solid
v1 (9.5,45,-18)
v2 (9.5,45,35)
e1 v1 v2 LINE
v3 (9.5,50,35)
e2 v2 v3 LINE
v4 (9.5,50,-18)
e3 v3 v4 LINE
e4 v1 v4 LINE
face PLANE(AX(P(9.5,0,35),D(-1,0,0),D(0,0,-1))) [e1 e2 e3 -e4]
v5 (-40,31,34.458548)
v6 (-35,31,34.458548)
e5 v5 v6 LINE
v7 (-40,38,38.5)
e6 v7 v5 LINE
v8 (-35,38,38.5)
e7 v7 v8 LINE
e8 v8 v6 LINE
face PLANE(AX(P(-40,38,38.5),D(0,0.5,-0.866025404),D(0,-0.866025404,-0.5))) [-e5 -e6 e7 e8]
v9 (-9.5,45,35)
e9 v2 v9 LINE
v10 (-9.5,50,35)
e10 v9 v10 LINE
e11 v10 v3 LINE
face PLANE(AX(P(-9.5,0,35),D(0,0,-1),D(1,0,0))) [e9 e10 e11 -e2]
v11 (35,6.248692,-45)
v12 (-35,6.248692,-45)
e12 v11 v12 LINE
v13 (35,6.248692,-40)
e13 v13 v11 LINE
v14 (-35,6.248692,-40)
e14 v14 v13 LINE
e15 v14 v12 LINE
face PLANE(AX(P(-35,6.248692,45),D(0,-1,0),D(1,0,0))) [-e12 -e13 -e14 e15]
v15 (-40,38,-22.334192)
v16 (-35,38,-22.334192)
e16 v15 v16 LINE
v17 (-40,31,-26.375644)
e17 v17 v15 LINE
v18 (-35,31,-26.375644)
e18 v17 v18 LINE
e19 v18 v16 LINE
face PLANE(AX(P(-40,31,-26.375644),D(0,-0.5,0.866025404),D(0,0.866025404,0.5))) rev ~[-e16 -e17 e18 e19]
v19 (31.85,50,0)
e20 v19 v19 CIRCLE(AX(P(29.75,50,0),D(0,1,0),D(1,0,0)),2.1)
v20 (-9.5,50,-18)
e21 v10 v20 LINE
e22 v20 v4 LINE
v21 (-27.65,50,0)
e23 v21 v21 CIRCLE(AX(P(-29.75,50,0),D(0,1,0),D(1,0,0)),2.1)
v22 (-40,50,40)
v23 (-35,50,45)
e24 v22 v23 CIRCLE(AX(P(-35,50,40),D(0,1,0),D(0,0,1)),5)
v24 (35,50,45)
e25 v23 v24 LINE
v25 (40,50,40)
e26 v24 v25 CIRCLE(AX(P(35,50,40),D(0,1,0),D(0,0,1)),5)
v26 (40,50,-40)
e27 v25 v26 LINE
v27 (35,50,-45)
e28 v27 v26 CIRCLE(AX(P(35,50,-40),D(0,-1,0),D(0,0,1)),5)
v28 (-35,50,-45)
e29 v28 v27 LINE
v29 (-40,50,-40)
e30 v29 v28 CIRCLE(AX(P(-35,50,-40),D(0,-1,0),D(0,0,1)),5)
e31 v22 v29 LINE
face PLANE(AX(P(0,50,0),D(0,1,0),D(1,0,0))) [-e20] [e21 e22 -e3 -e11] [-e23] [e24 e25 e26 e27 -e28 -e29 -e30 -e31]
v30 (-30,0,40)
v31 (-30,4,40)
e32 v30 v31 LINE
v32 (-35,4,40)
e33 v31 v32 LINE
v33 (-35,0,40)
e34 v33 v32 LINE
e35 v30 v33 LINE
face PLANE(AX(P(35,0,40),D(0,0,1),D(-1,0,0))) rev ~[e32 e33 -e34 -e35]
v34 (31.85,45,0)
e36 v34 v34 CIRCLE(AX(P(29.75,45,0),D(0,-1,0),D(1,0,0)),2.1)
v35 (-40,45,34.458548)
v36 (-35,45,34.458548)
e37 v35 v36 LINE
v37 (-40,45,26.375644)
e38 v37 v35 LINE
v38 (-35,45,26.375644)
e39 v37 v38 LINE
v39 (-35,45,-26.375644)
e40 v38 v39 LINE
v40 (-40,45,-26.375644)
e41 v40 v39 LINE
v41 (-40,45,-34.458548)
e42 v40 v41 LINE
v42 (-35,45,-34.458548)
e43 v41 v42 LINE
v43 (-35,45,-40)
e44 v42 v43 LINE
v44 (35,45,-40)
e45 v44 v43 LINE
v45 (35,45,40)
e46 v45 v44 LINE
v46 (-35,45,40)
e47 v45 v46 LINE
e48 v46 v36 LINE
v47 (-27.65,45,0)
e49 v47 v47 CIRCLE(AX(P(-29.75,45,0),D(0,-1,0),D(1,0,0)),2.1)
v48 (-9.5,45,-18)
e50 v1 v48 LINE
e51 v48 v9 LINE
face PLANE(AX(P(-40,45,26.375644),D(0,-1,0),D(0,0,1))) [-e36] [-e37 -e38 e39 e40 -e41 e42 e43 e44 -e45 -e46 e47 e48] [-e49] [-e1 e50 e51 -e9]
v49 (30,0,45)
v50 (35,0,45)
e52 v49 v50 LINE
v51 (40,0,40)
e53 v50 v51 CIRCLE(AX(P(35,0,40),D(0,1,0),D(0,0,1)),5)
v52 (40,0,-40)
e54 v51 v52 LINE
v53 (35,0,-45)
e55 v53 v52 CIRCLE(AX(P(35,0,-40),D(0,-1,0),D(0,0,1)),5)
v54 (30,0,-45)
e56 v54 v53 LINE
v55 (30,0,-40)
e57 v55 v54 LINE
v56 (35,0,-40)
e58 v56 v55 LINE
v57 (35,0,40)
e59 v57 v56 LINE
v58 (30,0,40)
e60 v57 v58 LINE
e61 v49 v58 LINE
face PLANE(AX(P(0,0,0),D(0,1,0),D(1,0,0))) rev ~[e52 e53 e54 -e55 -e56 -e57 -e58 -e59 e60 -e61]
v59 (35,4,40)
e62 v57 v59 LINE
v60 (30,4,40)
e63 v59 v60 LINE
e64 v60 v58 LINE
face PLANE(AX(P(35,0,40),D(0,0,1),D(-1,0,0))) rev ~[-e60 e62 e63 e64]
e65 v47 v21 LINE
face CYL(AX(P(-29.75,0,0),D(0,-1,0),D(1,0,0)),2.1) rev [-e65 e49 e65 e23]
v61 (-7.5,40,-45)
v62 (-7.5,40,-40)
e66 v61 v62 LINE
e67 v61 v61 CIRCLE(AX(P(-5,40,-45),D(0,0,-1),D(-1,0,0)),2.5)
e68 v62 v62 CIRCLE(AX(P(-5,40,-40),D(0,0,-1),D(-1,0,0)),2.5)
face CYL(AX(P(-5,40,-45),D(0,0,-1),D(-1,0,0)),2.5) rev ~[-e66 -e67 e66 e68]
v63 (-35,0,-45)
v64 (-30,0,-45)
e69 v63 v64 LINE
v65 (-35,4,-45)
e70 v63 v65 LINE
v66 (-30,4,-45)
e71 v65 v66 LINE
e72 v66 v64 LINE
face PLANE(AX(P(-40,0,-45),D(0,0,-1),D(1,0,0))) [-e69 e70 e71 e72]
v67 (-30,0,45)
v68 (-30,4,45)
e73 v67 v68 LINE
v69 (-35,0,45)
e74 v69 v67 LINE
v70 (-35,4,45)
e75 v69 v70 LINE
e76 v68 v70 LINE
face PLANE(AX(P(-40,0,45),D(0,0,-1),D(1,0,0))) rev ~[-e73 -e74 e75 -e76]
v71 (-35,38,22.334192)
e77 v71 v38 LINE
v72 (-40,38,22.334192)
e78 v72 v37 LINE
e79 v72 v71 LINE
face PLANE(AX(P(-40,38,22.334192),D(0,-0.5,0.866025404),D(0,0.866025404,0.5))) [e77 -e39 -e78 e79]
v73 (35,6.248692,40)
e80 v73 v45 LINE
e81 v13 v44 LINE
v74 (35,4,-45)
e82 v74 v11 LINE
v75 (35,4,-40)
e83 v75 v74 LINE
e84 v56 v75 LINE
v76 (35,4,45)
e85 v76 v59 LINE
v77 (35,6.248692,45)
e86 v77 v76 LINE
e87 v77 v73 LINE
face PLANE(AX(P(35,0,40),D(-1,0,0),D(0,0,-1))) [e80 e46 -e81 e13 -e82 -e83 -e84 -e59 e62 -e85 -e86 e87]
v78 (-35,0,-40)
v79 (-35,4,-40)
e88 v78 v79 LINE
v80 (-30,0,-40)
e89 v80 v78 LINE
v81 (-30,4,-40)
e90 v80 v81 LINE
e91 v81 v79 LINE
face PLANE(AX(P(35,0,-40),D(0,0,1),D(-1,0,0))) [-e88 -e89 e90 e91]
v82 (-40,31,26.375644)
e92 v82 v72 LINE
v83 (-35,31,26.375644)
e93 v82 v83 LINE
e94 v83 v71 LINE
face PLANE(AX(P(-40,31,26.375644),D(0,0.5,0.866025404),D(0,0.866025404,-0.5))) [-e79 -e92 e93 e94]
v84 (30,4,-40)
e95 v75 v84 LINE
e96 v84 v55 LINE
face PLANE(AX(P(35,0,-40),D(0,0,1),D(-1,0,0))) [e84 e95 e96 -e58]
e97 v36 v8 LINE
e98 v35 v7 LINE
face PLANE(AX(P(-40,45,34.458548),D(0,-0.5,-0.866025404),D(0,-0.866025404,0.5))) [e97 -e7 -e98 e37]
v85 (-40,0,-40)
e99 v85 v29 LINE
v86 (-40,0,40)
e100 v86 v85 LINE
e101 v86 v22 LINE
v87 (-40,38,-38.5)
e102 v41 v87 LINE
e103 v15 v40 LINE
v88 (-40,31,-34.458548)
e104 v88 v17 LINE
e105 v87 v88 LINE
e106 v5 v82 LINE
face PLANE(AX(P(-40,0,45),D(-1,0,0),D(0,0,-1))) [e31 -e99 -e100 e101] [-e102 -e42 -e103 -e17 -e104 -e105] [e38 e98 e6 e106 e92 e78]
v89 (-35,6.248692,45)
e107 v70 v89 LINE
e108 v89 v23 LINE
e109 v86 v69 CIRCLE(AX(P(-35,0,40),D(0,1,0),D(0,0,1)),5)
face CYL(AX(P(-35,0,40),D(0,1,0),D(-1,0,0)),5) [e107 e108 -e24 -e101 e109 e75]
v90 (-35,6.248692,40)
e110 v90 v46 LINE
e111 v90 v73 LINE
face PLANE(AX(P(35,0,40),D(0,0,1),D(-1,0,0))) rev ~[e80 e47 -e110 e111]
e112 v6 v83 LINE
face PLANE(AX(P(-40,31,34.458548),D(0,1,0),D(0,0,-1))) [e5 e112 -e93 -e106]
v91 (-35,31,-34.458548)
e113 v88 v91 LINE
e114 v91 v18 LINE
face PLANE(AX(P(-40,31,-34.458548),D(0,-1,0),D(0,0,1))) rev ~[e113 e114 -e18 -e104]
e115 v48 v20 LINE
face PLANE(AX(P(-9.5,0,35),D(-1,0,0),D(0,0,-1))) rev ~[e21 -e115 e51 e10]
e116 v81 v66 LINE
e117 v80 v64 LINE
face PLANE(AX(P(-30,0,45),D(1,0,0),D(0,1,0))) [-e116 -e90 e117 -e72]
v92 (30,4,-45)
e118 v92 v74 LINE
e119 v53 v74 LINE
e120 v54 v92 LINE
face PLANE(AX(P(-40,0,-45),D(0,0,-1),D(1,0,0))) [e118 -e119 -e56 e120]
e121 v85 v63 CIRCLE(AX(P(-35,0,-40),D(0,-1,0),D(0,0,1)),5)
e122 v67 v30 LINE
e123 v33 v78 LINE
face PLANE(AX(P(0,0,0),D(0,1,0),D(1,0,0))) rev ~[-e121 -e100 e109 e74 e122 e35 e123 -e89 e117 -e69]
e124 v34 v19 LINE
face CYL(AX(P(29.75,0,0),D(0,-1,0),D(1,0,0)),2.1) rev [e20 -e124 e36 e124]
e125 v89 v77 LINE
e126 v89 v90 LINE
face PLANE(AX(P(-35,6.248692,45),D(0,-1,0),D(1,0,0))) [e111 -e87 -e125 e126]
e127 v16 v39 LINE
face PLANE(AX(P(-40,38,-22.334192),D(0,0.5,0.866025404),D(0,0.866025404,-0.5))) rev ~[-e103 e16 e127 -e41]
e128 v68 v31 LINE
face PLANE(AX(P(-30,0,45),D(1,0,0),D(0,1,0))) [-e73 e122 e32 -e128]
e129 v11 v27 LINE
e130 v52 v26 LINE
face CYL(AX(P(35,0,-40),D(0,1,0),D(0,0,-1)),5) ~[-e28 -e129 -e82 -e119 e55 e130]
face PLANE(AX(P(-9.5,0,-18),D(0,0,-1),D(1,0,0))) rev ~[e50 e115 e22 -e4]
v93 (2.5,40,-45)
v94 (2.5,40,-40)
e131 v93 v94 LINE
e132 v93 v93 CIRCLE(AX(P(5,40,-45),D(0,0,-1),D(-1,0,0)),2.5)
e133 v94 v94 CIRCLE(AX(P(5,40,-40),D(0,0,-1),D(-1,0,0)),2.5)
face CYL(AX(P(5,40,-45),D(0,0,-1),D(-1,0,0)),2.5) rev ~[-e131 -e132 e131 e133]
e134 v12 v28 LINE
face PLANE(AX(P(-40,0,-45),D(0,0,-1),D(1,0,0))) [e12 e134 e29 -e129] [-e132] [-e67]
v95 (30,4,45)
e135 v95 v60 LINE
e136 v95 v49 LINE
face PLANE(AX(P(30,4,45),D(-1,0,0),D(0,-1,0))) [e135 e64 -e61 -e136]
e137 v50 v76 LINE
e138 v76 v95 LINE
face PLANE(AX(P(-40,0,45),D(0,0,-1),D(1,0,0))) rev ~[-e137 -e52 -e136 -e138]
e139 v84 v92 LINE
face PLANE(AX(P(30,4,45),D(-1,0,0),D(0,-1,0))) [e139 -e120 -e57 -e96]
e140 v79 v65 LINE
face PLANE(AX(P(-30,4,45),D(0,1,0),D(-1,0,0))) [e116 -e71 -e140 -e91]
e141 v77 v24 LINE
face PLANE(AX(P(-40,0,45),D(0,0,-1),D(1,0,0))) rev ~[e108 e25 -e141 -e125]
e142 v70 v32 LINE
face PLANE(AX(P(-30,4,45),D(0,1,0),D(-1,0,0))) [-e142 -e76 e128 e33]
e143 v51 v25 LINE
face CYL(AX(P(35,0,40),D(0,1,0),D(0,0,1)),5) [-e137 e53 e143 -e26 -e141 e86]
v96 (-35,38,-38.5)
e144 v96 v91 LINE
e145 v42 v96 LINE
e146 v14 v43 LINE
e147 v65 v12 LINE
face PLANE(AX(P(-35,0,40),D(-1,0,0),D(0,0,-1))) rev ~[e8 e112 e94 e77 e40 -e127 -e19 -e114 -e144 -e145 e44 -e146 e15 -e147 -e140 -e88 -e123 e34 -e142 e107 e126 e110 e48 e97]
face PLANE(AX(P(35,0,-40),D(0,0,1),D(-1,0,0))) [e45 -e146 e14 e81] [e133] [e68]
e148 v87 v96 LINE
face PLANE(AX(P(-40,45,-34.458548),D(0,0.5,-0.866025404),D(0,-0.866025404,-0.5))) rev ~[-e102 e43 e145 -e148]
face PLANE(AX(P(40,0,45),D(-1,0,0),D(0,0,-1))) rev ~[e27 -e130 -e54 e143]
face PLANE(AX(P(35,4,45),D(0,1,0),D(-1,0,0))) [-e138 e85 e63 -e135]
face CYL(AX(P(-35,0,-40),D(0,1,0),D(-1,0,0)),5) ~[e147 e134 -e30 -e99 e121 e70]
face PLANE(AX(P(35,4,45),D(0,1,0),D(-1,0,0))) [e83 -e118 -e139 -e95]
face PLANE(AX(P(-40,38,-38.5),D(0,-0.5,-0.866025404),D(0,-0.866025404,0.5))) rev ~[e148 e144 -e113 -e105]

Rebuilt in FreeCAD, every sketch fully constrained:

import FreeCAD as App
import Part
import Sketcher
Q = App.Units.Quantity


def edges_at(feature, points):
    """Names of the edges that pass closest to the given points."""
    edges = feature.Shape.Edges
    near = lambda p: min(range(len(edges)), key=lambda i: edges[i].distToShape(Part.Vertex(*p))[0])
    return sorted({f"Edge{near(p) + 1}" for p in points})


def add_polygon(sketch, points):
    """Adds a closed chain of lines whose ends are joined by coincident constraints."""
    first, n = sketch.GeometryCount, len(points)
    for a, b in zip(points, points[1:] + points[:1]):
        sketch.addGeometry(Part.LineSegment(App.Vector(*a, 0), App.Vector(*b, 0)), False)
    for i in range(n):
        sketch.addConstraint(Sketcher.Constraint("Coincident", first + i, 2, first + (i + 1) % n, 1))

doc = App.newDocument("Part")
body = doc.addObject("PartDesign::Body", "Body")

sketch1 = body.newObject("Sketcher::SketchObject", "Sketch")
sketch1.AttachmentSupport = (doc.getObject("XZ_Plane"), [""])
sketch1.MapMode = "FlatFace"
add_polygon(sketch1, [(-40, -45), (-40, 45), (40, 45), (40, -45)])
sketch1.addGeometry(Part.Circle(App.Vector(-29.8, 0, 0), App.Vector(0, 0, 1), 2.1), False)
add_polygon(sketch1, [(9.5, 35), (-9.5, 35), (-9.5, -18), (9.5, -18)])
sketch1.addGeometry(Part.Circle(App.Vector(29.8, 0, 0), App.Vector(0, 0, 1), 2.1), False)
sketch1.addConstraint(Sketcher.Constraint("Vertical", 0))
sketch1.addConstraint(Sketcher.Constraint("Horizontal", 1))
sketch1.addConstraint(Sketcher.Constraint("Vertical", 2))
sketch1.addConstraint(Sketcher.Constraint("Horizontal", 3))
sketch1.addConstraint(Sketcher.Constraint("Horizontal", 5))
sketch1.addConstraint(Sketcher.Constraint("Vertical", 6))
sketch1.addConstraint(Sketcher.Constraint("Horizontal", 7))
sketch1.addConstraint(Sketcher.Constraint("Vertical", 8))
sketch1.addConstraint(Sketcher.Constraint("Equal", 4, 9))
sketch1.addConstraint(Sketcher.Constraint("Symmetric", 4, 3, 9, 3, -1, 1))
sketch1.addConstraint(Sketcher.Constraint("Symmetric", 0, 2, 2, 2, -1, 1))
sketch1.addConstraint(Sketcher.Constraint("PointOnObject", 4, 3, -1))
sketch1.addConstraint(Sketcher.Constraint("Diameter", 4, 4.2))
sketch1.addConstraint(Sketcher.Constraint("DistanceX", 1, 1, 1, 2, 80.0))
sketch1.addConstraint(Sketcher.Constraint("DistanceX", 5, 2, 5, 1, 19.0))
sketch1.addConstraint(Sketcher.Constraint("DistanceY", 0, 1, 0, 2, 90.0))
sketch1.addConstraint(Sketcher.Constraint("DistanceY", 6, 2, 6, 1, 53.0))
sketch1.addConstraint(Sketcher.Constraint("DistanceY", -1, 1, 5, 2, 35.0))
sketch1.addConstraint(Sketcher.Constraint("DistanceX", 5, 2, -1, 1, 9.5))
sketch1.addConstraint(Sketcher.Constraint("DistanceX", 4, 3, 9, 3, 59.5))
pad1 = body.newObject("PartDesign::Pad", "Pad")
pad1.Profile = sketch1
pad1.Length = 50
pad1.Reversed = True

sketch2 = body.newObject("Sketcher::SketchObject", "Sketch001")
sketch2.AttachmentSupport = (doc.getObject("XZ_Plane"), [""])
sketch2.MapMode = "FlatFace"
add_polygon(sketch2, [(35, -40), (35, 40), (-35, 40), (-35, -40)])
sketch2.addConstraint(Sketcher.Constraint("Vertical", 0))
sketch2.addConstraint(Sketcher.Constraint("Horizontal", 1))
sketch2.addConstraint(Sketcher.Constraint("Vertical", 2))
sketch2.addConstraint(Sketcher.Constraint("Horizontal", 3))
sketch2.addConstraint(Sketcher.Constraint("Symmetric", 0, 2, 2, 2, -1, 1))
sketch2.addConstraint(Sketcher.Constraint("DistanceX", 1, 2, 1, 1, 70.0))
sketch2.addConstraint(Sketcher.Constraint("DistanceY", 0, 1, 0, 2, 80.0))
pocket1 = body.newObject("PartDesign::Pocket", "Pocket")
pocket1.Profile = sketch2
pocket1.Length = 45

sketch3 = body.newObject("Sketcher::SketchObject", "Sketch002")
sketch3.AttachmentSupport = (doc.getObject("XY_Plane"), [""])
sketch3.MapMode = "FlatFace"
sketch3.AttachmentOffset = App.Placement(App.Vector(0, 0, -45), App.Rotation())
sketch3.addGeometry(Part.Circle(App.Vector(5, 40, 0), App.Vector(0, 0, 1), 2.5), False)
sketch3.addGeometry(Part.Circle(App.Vector(-5, 40, 0), App.Vector(0, 0, 1), 2.5), False)
sketch3.addConstraint(Sketcher.Constraint("Equal", 0, 1))
sketch3.addConstraint(Sketcher.Constraint("Symmetric", 0, 3, 1, 3, -2))
sketch3.addConstraint(Sketcher.Constraint("Diameter", 0, 5.0))
sketch3.addConstraint(Sketcher.Constraint("DistanceX", -1, 1, 0, 3, 5.0))
sketch3.addConstraint(Sketcher.Constraint("DistanceY", -1, 1, 0, 3, 40.0))
pocket2 = body.newObject("PartDesign::Pocket", "Pocket001")
pocket2.Profile = sketch3
pocket2.Length = 10.25
pocket2.Reversed = True

sketch4 = body.newObject("Sketcher::SketchObject", "Sketch003")
sketch4.AttachmentSupport = (doc.getObject("YZ_Plane"), [""])
sketch4.MapMode = "FlatFace"
sketch4.AttachmentOffset = App.Placement(App.Vector(0, 0, -40), App.Rotation())
add_polygon(sketch4, [(31, -26), (38, -22), (45, -26), (45, -34), (38, -38), (31, -34)])
add_polygon(sketch4, [(31, 26), (31, 34), (38, 38), (45, 34), (45, 26), (38, 22)])
sketch4.addConstraint(Sketcher.Constraint("Vertical", 2))
sketch4.addConstraint(Sketcher.Constraint("Vertical", 5))
sketch4.addConstraint(Sketcher.Constraint("Vertical", 6))
sketch4.addConstraint(Sketcher.Constraint("Vertical", 9))
sketch4.addConstraint(Sketcher.Constraint("Symmetric", 4, 2, 6, 2, -1))
sketch4.addConstraint(Sketcher.Constraint("Symmetric", 3, 2, 7, 2, -1))
sketch4.addConstraint(Sketcher.Constraint("Symmetric", 2, 2, 8, 2, -1))
sketch4.addConstraint(Sketcher.Constraint("Symmetric", 0, 2, 10, 2, -1))
sketch4.addConstraint(Sketcher.Constraint("Parallel", 0, 3))
sketch4.addConstraint(Sketcher.Constraint("Parallel", 1, 4))
sketch4.addConstraint(Sketcher.Constraint("Parallel", 3, 7))
sketch4.addConstraint(Sketcher.Constraint("Parallel", 7, 10))
sketch4.addConstraint(Sketcher.Constraint("Parallel", 8, 11))
sketch4.addConstraint(Sketcher.Constraint("Horizontal", 2, 2, 4, 2))
sketch4.addConstraint(Sketcher.Constraint("Horizontal", 1, 2, 5, 2))
sketch4.addConstraint(Sketcher.Constraint("Angle", 0, Q("30 deg")))
sketch4.addConstraint(Sketcher.Constraint("DistanceX", -1, 1, 0, 2, 38.0))
sketch4.addConstraint(Sketcher.Constraint("DistanceX", -1, 1, 1, 2, 45.0))
sketch4.addConstraint(Sketcher.Constraint("DistanceY", 3, 2, -1, 1, 38.5))
sketch4.addConstraint(Sketcher.Constraint("DistanceY", 2, 2, 2, 1, 8.082904))
pocket3 = body.newObject("PartDesign::Pocket", "Pocket002")
pocket3.Profile = sketch4
pocket3.Length = 10.25
pocket3.Reversed = True
doc.recompute()

fillet = body.newObject("PartDesign::Fillet", "Fillet")
fillet.Base = (pocket3, edges_at(pocket3, [
    (40, 25, 45),
    (-40, 25, 45),
    (-40, 25, -45),
    (40, 25, -45),
]))
fillet.Radius = 5

sketch5 = body.newObject("Sketcher::SketchObject", "Sketch004")
sketch5.AttachmentSupport = (doc.getObject("XY_Plane"), [""])
sketch5.MapMode = "FlatFace"
sketch5.AttachmentOffset = App.Placement(App.Vector(0, 0, 45), App.Rotation())
add_polygon(sketch5, [(35, 6.2), (-35, 6.2), (-35, 4), (-30, 4), (-30, 0), (30, 0), (30, 4), (35, 4)])
sketch5.addConstraint(Sketcher.Constraint("Horizontal", 0))
sketch5.addConstraint(Sketcher.Constraint("Vertical", 1))
sketch5.addConstraint(Sketcher.Constraint("Horizontal", 2))
sketch5.addConstraint(Sketcher.Constraint("Vertical", 3))
sketch5.addConstraint(Sketcher.Constraint("Horizontal", 4))
sketch5.addConstraint(Sketcher.Constraint("Vertical", 5))
sketch5.addConstraint(Sketcher.Constraint("Horizontal", 6))
sketch5.addConstraint(Sketcher.Constraint("Vertical", 7))
sketch5.addConstraint(Sketcher.Constraint("Symmetric", 3, 2, 4, 2, -1, 1))
sketch5.addConstraint(Sketcher.Constraint("Symmetric", 1, 2, 6, 2, -2))
sketch5.addConstraint(Sketcher.Constraint("DistanceX", 0, 2, 0, 1, 70.0))
sketch5.addConstraint(Sketcher.Constraint("DistanceX", 2, 1, 2, 2, 5.0))
sketch5.addConstraint(Sketcher.Constraint("DistanceY", 3, 2, 3, 1, 4.0))
sketch5.addConstraint(Sketcher.Constraint("DistanceY", 1, 2, 1, 1, 2.248692))
pocket4 = body.newObject("PartDesign::Pocket", "Pocket003")
pocket4.Profile = sketch5
pocket4.Length = 1000

doc.recompute()
